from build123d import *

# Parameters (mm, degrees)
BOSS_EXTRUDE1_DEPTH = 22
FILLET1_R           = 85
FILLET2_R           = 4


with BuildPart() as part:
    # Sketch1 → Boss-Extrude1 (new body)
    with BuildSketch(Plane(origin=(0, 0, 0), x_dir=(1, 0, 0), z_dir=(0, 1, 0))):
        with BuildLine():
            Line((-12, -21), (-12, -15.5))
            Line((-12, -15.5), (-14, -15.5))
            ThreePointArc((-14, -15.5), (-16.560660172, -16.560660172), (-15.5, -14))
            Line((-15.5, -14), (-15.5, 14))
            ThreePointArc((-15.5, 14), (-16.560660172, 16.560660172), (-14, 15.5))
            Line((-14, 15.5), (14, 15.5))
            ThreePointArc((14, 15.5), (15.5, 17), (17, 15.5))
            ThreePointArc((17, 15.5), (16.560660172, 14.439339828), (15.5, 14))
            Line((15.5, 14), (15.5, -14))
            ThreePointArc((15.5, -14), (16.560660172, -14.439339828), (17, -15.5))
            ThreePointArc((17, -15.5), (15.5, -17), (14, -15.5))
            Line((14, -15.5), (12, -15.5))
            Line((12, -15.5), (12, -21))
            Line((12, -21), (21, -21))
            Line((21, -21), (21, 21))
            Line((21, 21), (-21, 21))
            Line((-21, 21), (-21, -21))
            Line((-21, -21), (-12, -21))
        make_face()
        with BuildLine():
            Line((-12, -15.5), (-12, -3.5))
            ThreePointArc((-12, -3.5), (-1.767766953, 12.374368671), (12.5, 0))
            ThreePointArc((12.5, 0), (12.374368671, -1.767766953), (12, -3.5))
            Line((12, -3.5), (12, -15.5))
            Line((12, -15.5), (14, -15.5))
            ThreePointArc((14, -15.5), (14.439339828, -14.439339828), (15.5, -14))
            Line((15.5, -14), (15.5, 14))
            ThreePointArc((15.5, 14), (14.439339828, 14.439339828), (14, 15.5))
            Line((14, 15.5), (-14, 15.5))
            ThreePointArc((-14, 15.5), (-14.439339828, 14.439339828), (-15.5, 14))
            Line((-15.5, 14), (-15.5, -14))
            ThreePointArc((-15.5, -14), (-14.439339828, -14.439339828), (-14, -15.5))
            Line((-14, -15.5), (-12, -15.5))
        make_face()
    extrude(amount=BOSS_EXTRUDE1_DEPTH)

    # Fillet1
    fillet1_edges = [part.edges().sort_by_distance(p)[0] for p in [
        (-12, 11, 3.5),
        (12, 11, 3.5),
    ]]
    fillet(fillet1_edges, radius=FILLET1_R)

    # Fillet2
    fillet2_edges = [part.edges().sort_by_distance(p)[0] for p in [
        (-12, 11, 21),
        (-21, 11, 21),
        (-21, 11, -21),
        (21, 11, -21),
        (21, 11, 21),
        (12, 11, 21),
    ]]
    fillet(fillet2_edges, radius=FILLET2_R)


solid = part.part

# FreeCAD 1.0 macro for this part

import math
import FreeCAD as App
import Part
import Sketcher

V = App.Vector
Q = App.Units.Quantity


def edges_at(feature, points):
    """Names of the edges that pass closest to the given points."""
    edges = feature.Shape.Edges
    near = lambda p: min(range(len(edges)), key=lambda i: edges[i].distToShape(Part.Vertex(*p))[0])
    return sorted({f"Edge{near(p) + 1}" for p in points})

doc = App.newDocument("Part")
body = doc.addObject("PartDesign::Body", "Body")

sketch1 = body.newObject("Sketcher::SketchObject", "Sketch")
sketch1.AttachmentSupport = (doc.getObject("XZ_Plane"), [""])
sketch1.MapMode = "FlatFace"
sketch1.addGeometry([
    Part.LineSegment(V(-12, 21, 0), V(-12, 3.5, 0)),
    Part.ArcOfCircle(Part.Circle(V(0, 0, 0), V(0, 0, 1), 12.5), math.radians(164), math.radians(360)),
    Part.ArcOfCircle(Part.Circle(V(0, 0, 0), V(0, 0, 1), 12.5), math.radians(0), math.radians(16.26)),
    Part.LineSegment(V(12, 3.5, 0), V(12, 21, 0)),
    Part.LineSegment(V(12, 21, 0), V(21, 21, 0)),
    Part.LineSegment(V(21, 21, 0), V(21, -21, 0)),
    Part.LineSegment(V(21, -21, 0), V(-21, -21, 0)),
    Part.LineSegment(V(-21, -21, 0), V(-21, 21, 0)),
    Part.LineSegment(V(-21, 21, 0), V(-12, 21, 0)),
    Part.ArcOfCircle(Part.Circle(V(-15.5, 15.5, 0), V(0, 0, 1), 1.5), math.radians(0), math.radians(270)),
    Part.ArcOfCircle(Part.Circle(V(-15.5, 15.5, 0), V(0, 0, 1), 1.5), math.radians(-90), math.radians(0)),
    Part.ArcOfCircle(Part.Circle(V(-15.5, -15.5, 0), V(0, 0, 1), 1.5), math.radians(90), math.radians(360)),
    Part.ArcOfCircle(Part.Circle(V(-15.5, -15.5, 0), V(0, 0, 1), 1.5), math.radians(0), math.radians(90)),
    Part.ArcOfCircle(Part.Circle(V(15.5, -15.5, 0), V(0, 0, 1), 1.5), math.radians(180), math.radians(360)),
    Part.ArcOfCircle(Part.Circle(V(15.5, -15.5, 0), V(0, 0, 1), 1.5), math.radians(0), math.radians(90)),
    Part.ArcOfCircle(Part.Circle(V(15.5, -15.5, 0), V(0, 0, 1), 1.5), math.radians(90), math.radians(180)),
    Part.ArcOfCircle(Part.Circle(V(15.5, 15.5, 0), V(0, 0, 1), 1.5), math.radians(-90), math.radians(0)),
    Part.ArcOfCircle(Part.Circle(V(15.5, 15.5, 0), V(0, 0, 1), 1.5), math.radians(0), math.radians(180)),
    Part.ArcOfCircle(Part.Circle(V(15.5, 15.5, 0), V(0, 0, 1), 1.5), math.radians(180), math.radians(270)),
], False)
sketch1.addConstraint([
    Sketcher.Constraint("Coincident", 0, 2, 1, 1),
    Sketcher.Constraint("Tangent", 1, 2, 2, 1),
    Sketcher.Constraint("Coincident", 2, 2, 3, 1),
    Sketcher.Constraint("Coincident", 3, 2, 4, 1),
    Sketcher.Constraint("Coincident", 4, 2, 5, 1),
    Sketcher.Constraint("Coincident", 5, 2, 6, 1),
    Sketcher.Constraint("Coincident", 6, 2, 7, 1),
    Sketcher.Constraint("Coincident", 7, 2, 8, 1),
    Sketcher.Constraint("Coincident", 8, 2, 0, 1),
    Sketcher.Constraint("Tangent", 9, 1, 10, 2),
    Sketcher.Constraint("Coincident", 10, 1, 9, 2),
    Sketcher.Constraint("Tangent", 11, 1, 12, 2),
    Sketcher.Constraint("Coincident", 12, 1, 11, 2),
    Sketcher.Constraint("Tangent", 13, 2, 14, 1),
    Sketcher.Constraint("Tangent", 14, 2, 15, 1),
    Sketcher.Constraint("Tangent", 15, 2, 13, 1),
    Sketcher.Constraint("Tangent", 16, 2, 17, 1),
    Sketcher.Constraint("Tangent", 17, 2, 18, 1),
    Sketcher.Constraint("Tangent", 18, 2, 16, 1),
    Sketcher.Constraint("Vertical", 0),
    Sketcher.Constraint("Vertical", 3),
    Sketcher.Constraint("Horizontal", 4),
    Sketcher.Constraint("Vertical", 5),
    Sketcher.Constraint("Horizontal", 6),
    Sketcher.Constraint("Vertical", 7),
    Sketcher.Constraint("Horizontal", 8),
    Sketcher.Constraint("Coincident", 1, 3, -1, 1),
    Sketcher.Constraint("Equal", 1, 2),
    Sketcher.Constraint("Equal", 10, 11),
    Sketcher.Constraint("Equal", 12, 13),
    Sketcher.Constraint("Equal", 15, 16),
    Sketcher.Constraint("Symmetric", 9, 3, 13, 3, -1, 1),
    Sketcher.Constraint("Symmetric", 11, 3, 16, 3, -1, 1),
    Sketcher.Constraint("Symmetric", 4, 2, 6, 2, -1, 1),
    Sketcher.Constraint("Symmetric", 11, 3, 13, 3, -2),
    Sketcher.Constraint("Symmetric", 3, 2, 8, 2, -2),
    Sketcher.Constraint("PointOnObject", 1, 2, -1),
    Sketcher.Constraint("Horizontal", 18, 3, 9, 1),
    Sketcher.Constraint("Horizontal", 15, 3, 12, 1),
    Sketcher.Constraint("Horizontal", 12, 1, 13, 2),
    Sketcher.Constraint("Horizontal", 13, 2, 15, 2),
    Sketcher.Constraint("Horizontal", 9, 1, 16, 2),
    Sketcher.Constraint("Horizontal", 16, 2, 17, 2),
    Sketcher.Constraint("Vertical", 12, 3, 10, 1),
    Sketcher.Constraint("Vertical", 10, 1, 11, 1),
    Sketcher.Constraint("Vertical", 18, 3, 14, 2),
    Sketcher.Constraint("Vertical", 14, 2, 18, 2),
    Sketcher.Constraint("Equal", 6, 5),
    Sketcher.Constraint("Radius", 1, Q("12.5 mm")),
    Sketcher.Constraint("Radius", 9, Q("1.5 mm")),
    Sketcher.Constraint("DistanceX", 4, 1, 4, 2, Q("9 mm")),
    Sketcher.Constraint("DistanceX", 6, 2, 6, 1, Q("42 mm")),
    Sketcher.Constraint("DistanceX", 9, 1, -1, 1, Q("14 mm")),
    Sketcher.Constraint("DistanceY", -1, 1, 10, 1, Q("14 mm")),
])
pad1 = body.newObject("PartDesign::Pad", "Pad")
pad1.Profile = sketch1
pad1.Length = 22
pad1.Reversed = True
doc.recompute()

fillet = body.newObject("PartDesign::Fillet", "Fillet")
fillet.Base = (pad1, edges_at(pad1, [(-12, 11, 3.5), (12, 11, 3.5)]))
fillet.Radius = 85
doc.recompute()

fillet2 = body.newObject("PartDesign::Fillet", "Fillet001")
fillet2.Base = (fillet, edges_at(fillet, [
    (-12, 11, 21),
    (-21, 11, 21),
    (-21, 11, -21),
    (21, 11, -21),
    (21, 11, 21),
    (12, 11, 21),
]))
fillet2.Radius = 4

doc.recompute()
